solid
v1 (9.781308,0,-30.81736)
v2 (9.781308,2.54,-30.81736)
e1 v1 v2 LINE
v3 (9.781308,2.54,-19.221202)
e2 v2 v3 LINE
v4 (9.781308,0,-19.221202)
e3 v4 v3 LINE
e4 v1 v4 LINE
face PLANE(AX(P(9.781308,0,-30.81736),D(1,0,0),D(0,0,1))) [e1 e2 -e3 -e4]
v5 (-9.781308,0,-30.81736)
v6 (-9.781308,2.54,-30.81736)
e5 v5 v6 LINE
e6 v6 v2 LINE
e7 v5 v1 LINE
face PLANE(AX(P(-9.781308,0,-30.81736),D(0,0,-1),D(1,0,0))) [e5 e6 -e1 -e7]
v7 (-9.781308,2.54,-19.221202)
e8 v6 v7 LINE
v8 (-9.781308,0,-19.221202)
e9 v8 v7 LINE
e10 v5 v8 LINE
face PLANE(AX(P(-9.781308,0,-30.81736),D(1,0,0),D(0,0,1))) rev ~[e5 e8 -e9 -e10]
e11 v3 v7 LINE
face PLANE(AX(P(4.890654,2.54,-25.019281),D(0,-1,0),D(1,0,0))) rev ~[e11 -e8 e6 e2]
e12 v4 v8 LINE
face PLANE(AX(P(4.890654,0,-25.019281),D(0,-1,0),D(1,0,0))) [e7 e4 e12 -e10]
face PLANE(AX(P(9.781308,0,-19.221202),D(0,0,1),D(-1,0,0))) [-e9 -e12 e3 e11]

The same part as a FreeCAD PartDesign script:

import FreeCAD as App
import Part
import Sketcher

V = App.Vector
Q = App.Units.Quantity


def add_polygon(sketch, points):
    """Adds a closed chain of lines whose ends are joined by coincident constraints."""
    first, n = sketch.GeometryCount, len(points)
    for a, b in zip(points, points[1:] + points[:1]):
        sketch.addGeometry(Part.LineSegment(App.Vector(*a, 0), App.Vector(*b, 0)), False)
    for i in range(n):
        sketch.addConstraint(Sketcher.Constraint("Coincident", first + i, 2, first + (i + 1) % n, 1))

doc = App.newDocument("Part")
params = doc.addObject("Spreadsheet::Sheet", "Params")
for row, (alias, value) in enumerate([
    ("pad1_length", "0.1 in"),
], start=1):
    params.set(f"A{row}", alias)
    params.set(f"B{row}", "=" + value)
    params.setAlias(f"B{row}", alias)

body = doc.addObject("PartDesign::Body", "Body")

sketch1 = body.newObject("Sketcher::SketchObject", "Sketch")
sketch1.AttachmentSupport = (doc.getObject("XZ_Plane"), [""])
sketch1.MapMode = "FlatFace"
add_polygon(sketch1, [(9.781308, -30.81736), (9.781308, -19.221202), (-9.781308, -19.221202), (-9.781308, -30.81736)])
sketch1.addConstraint(Sketcher.Constraint("Vertical", 0))
sketch1.addConstraint(Sketcher.Constraint("Horizontal", 1))
sketch1.addConstraint(Sketcher.Constraint("Vertical", 2))
sketch1.addConstraint(Sketcher.Constraint("Horizontal", 3))
sketch1.addConstraint(Sketcher.Constraint("DistanceX", 1, 2, 1, 1, Q("19.562616 mm")))
sketch1.addConstraint(Sketcher.Constraint("DistanceY", 0, 1, 0, 2, Q("11.596158 mm")))
sketch1.addConstraint(Sketcher.Constraint("DistanceY", 2, 2, -1, 1, Q("30.81736 mm")))
sketch1.addConstraint(Sketcher.Constraint("DistanceX", -1, 1, 0, 2, Q("9.781308 mm")))
pad1 = body.newObject("PartDesign::Pad", "Pad")
pad1.Profile = sketch1
pad1.setExpression("Length", "Params.pad1_length")
pad1.Reversed = True

doc.recompute()
